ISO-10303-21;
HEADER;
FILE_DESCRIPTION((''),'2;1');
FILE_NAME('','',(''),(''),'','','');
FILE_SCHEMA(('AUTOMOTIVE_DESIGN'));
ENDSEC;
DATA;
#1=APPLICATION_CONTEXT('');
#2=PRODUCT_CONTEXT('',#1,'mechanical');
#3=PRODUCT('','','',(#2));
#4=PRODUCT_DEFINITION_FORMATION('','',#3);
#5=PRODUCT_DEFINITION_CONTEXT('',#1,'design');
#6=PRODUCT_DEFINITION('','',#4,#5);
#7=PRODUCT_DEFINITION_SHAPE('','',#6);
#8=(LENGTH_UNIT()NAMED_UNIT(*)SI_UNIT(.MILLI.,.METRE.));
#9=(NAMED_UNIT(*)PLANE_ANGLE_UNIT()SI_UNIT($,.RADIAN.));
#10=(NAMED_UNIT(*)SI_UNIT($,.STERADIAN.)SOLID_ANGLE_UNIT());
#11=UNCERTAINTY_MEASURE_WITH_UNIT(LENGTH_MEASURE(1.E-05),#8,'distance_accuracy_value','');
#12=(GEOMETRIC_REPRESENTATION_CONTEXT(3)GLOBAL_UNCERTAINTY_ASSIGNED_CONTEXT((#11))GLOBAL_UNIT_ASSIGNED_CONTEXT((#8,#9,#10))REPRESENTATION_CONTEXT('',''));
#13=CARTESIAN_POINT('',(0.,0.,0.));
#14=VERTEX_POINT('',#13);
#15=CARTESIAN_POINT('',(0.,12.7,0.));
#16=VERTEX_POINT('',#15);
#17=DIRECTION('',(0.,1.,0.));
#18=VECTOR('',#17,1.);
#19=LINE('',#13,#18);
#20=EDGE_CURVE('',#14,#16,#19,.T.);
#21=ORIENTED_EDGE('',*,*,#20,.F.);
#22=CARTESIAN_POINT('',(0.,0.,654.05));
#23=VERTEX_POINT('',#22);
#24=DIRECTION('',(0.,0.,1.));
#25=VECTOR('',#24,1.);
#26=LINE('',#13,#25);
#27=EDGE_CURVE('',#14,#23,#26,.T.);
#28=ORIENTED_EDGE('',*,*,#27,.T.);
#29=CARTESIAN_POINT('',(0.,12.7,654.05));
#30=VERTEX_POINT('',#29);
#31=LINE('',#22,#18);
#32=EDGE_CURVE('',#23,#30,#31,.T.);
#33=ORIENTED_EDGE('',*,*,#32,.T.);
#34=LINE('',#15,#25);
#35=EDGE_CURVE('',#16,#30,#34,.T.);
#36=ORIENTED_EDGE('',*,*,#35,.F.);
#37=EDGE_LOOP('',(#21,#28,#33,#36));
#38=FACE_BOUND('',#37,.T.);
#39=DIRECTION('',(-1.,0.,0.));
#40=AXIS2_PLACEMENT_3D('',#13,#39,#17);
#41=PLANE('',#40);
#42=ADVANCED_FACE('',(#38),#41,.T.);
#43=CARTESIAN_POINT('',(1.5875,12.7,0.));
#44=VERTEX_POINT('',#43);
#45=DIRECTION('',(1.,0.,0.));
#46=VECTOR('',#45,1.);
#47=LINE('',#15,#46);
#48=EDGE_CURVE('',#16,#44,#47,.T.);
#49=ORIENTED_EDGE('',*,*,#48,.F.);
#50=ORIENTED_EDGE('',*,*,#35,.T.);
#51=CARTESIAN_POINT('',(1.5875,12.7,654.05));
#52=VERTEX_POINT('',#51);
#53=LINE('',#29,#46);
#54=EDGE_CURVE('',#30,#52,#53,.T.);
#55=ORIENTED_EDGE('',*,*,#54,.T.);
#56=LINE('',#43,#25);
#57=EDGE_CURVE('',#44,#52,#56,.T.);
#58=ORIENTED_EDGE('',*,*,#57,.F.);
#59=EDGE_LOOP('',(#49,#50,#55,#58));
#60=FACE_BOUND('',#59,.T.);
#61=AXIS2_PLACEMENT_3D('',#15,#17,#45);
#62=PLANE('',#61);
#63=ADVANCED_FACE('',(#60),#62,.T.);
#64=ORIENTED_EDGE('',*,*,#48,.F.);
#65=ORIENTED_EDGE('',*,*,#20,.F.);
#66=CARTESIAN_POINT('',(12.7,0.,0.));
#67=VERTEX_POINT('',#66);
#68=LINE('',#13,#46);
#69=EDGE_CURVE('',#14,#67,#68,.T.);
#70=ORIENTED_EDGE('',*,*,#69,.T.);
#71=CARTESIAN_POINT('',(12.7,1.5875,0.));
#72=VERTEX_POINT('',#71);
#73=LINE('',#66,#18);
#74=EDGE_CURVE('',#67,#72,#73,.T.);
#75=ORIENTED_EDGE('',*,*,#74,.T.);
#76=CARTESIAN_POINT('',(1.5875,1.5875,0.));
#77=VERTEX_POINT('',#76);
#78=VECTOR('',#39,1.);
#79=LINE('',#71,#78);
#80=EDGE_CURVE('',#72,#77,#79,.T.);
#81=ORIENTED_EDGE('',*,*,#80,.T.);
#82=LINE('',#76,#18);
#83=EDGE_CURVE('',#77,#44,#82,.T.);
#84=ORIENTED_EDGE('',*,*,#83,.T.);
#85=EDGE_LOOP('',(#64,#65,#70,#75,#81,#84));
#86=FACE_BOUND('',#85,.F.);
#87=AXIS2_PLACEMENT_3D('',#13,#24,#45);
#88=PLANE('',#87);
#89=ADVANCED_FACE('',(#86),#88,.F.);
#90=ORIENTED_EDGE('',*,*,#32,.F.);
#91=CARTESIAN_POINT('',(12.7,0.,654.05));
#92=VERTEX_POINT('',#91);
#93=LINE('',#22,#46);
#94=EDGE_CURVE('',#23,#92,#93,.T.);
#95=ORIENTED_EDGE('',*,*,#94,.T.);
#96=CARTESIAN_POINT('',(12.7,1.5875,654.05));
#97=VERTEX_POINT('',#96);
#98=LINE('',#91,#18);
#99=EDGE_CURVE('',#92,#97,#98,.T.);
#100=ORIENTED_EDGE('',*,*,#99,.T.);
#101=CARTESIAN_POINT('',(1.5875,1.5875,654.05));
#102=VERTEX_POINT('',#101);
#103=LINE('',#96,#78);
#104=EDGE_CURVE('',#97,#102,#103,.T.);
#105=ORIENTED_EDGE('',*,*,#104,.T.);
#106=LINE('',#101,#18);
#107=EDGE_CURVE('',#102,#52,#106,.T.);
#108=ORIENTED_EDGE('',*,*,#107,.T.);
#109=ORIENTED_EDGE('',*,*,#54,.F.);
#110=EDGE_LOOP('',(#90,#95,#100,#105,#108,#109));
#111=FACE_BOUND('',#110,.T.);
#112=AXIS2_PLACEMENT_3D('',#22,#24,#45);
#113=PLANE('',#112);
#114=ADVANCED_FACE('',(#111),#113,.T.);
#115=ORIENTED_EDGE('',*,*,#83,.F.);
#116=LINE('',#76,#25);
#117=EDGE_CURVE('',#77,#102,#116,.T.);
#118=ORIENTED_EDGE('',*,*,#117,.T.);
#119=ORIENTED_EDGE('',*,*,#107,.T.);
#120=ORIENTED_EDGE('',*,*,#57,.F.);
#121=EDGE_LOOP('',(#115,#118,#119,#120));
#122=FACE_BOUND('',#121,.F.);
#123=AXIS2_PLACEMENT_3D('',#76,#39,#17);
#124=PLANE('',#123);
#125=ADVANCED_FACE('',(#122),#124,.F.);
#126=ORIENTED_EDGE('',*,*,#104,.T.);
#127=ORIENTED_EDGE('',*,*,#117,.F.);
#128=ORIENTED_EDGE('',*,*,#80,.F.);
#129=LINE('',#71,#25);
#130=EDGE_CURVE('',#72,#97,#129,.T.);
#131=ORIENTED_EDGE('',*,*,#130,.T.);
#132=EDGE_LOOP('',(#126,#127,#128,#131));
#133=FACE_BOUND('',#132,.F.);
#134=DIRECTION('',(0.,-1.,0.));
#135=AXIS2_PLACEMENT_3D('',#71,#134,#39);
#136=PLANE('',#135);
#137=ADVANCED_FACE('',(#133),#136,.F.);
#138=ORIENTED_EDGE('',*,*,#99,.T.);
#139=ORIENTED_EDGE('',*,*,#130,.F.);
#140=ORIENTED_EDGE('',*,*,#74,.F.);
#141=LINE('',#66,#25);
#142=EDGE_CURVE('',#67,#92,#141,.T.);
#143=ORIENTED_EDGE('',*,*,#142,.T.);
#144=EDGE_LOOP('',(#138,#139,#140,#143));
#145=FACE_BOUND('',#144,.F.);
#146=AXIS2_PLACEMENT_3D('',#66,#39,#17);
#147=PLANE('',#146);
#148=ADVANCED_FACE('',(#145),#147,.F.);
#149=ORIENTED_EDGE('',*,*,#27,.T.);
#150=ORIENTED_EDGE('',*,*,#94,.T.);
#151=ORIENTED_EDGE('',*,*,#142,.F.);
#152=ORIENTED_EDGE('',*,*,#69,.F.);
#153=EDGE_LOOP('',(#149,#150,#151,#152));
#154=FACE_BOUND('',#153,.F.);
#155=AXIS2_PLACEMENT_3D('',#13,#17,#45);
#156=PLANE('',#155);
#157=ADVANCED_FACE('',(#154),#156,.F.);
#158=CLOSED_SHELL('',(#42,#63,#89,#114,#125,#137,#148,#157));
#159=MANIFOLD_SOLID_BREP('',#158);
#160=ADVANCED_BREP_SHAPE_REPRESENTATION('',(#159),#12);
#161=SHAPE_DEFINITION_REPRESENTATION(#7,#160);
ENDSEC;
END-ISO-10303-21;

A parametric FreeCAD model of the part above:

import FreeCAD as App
import Part
import Sketcher
from FreeCAD import Vector
Q = App.Units.Quantity


def add_polygon(sketch, points):
    """Adds a closed chain of lines whose ends are joined by coincident constraints."""
    first, n = sketch.GeometryCount, len(points)
    for a, b in zip(points, points[1:] + points[:1]):
        sketch.addGeometry(Part.LineSegment(App.Vector(*a, 0), App.Vector(*b, 0)), False)
    for i in range(n):
        sketch.addConstraint(Sketcher.Constraint("Coincident", first + i, 2, first + (i + 1) % n, 1))

doc = App.newDocument("Part")
body = doc.addObject("PartDesign::Body", "Body")

# Sketch on XY plane
sketch1 = body.newObject("Sketcher::SketchObject", "Sketch")
sketch1.AttachmentSupport = (doc.getObject("XY_Plane"), [""])
sketch1.MapMode = "FlatFace"
add_polygon(sketch1, [(0, 12.7), (0, 0), (12.7, 0), (12.7, 1.6), (1.6, 1.6), (1.6, 12.7)])  # lines 0-5
sketch1.addConstraint([
    Sketcher.Constraint("Vertical", 0),
    Sketcher.Constraint("Horizontal", 1),
    Sketcher.Constraint("Vertical", 2),
    Sketcher.Constraint("Horizontal", 3),
    Sketcher.Constraint("Vertical", 4),
    Sketcher.Constraint("Horizontal", 5),
    Sketcher.Constraint("Coincident", 0, 2, -1, 1),
    Sketcher.Constraint("Equal", 1, 0),
    Sketcher.Constraint("Equal", 5, 2),
    Sketcher.Constraint("DistanceX", 1, 1, 1, 2, Q("0.5 in")),
    Sketcher.Constraint("DistanceX", 5, 2, 5, 1, Q("0.0625 in")),
])
pad1 = body.newObject("PartDesign::Pad", "Pad")
pad1.Profile = sketch1
pad1.Length = Q("25.75 in")

doc.recompute()
